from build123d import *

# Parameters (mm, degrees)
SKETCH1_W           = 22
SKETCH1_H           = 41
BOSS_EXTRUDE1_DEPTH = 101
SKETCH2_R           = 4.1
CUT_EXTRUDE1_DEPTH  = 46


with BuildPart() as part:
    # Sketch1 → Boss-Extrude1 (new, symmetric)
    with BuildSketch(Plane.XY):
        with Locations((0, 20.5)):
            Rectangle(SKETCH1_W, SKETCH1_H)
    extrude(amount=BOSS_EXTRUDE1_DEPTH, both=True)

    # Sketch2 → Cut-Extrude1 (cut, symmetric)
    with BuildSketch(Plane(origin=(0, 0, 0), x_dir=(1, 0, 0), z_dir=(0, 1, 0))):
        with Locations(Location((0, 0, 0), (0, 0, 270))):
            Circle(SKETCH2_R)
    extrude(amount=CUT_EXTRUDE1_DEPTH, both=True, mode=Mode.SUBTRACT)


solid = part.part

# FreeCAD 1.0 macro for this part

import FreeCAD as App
import Part
import Sketcher

doc = App.newDocument("Part")
body = doc.addObject("PartDesign::Body", "Body")

# Sketch on XY plane
sketch1 = body.newObject("Sketcher::SketchObject", "Sketch")
sketch1.AttachmentSupport = (doc.getObject("XY_Plane"), [""])
sketch1.MapMode = "FlatFace"
sketch1.addGeometry(Part.LineSegment(App.Vector(-11, 41, 0), App.Vector(-11, 0, 0)), False)
sketch1.addGeometry(Part.LineSegment(App.Vector(-11, 0, 0), App.Vector(11, 0, 0)), False)
sketch1.addGeometry(Part.LineSegment(App.Vector(11, 0, 0), App.Vector(11, 41, 0)), False)
sketch1.addGeometry(Part.LineSegment(App.Vector(11, 41, 0), App.Vector(-11, 41, 0)), False)
sketch1.addConstraint(Sketcher.Constraint("Coincident", 0, 2, 1, 1))
sketch1.addConstraint(Sketcher.Constraint("Coincident", 1, 2, 2, 1))
sketch1.addConstraint(Sketcher.Constraint("Coincident", 2, 2, 3, 1))
sketch1.addConstraint(Sketcher.Constraint("Coincident", 3, 2, 0, 1))
sketch1.addConstraint(Sketcher.Constraint("Vertical", 0))
sketch1.addConstraint(Sketcher.Constraint("Horizontal", 1))
sketch1.addConstraint(Sketcher.Constraint("Vertical", 2))
sketch1.addConstraint(Sketcher.Constraint("Horizontal", 3))
sketch1.addConstraint(Sketcher.Constraint("Symmetric", 0, 2, 1, 2, -1, 1))
sketch1.addConstraint(Sketcher.Constraint("DistanceX", 1, 1, 1, 2, 22.0))
sketch1.addConstraint(Sketcher.Constraint("DistanceY", 0, 2, 0, 1, 41.0))
pad1 = body.newObject("PartDesign::Pad", "Pad")
pad1.Profile = sketch1
pad1.Length = 202
pad1.Midplane = True

# Sketch on XZ plane
sketch2 = body.newObject("Sketcher::SketchObject", "Sketch001")
sketch2.AttachmentSupport = (doc.getObject("XZ_Plane"), [""])
sketch2.MapMode = "FlatFace"
sketch2.addGeometry(Part.Circle(App.Vector(0, 0, 0), App.Vector(0, 0, 1), 4.1), False)
sketch2.addConstraint(Sketcher.Constraint("Coincident", 0, 3, -1, 1))
sketch2.addConstraint(Sketcher.Constraint("Diameter", 0, 8.2))
pocket1 = body.newObject("PartDesign::Pocket", "Pocket")
pocket1.Profile = sketch2
pocket1.Length = 92
pocket1.Midplane = True

doc.recompute()
